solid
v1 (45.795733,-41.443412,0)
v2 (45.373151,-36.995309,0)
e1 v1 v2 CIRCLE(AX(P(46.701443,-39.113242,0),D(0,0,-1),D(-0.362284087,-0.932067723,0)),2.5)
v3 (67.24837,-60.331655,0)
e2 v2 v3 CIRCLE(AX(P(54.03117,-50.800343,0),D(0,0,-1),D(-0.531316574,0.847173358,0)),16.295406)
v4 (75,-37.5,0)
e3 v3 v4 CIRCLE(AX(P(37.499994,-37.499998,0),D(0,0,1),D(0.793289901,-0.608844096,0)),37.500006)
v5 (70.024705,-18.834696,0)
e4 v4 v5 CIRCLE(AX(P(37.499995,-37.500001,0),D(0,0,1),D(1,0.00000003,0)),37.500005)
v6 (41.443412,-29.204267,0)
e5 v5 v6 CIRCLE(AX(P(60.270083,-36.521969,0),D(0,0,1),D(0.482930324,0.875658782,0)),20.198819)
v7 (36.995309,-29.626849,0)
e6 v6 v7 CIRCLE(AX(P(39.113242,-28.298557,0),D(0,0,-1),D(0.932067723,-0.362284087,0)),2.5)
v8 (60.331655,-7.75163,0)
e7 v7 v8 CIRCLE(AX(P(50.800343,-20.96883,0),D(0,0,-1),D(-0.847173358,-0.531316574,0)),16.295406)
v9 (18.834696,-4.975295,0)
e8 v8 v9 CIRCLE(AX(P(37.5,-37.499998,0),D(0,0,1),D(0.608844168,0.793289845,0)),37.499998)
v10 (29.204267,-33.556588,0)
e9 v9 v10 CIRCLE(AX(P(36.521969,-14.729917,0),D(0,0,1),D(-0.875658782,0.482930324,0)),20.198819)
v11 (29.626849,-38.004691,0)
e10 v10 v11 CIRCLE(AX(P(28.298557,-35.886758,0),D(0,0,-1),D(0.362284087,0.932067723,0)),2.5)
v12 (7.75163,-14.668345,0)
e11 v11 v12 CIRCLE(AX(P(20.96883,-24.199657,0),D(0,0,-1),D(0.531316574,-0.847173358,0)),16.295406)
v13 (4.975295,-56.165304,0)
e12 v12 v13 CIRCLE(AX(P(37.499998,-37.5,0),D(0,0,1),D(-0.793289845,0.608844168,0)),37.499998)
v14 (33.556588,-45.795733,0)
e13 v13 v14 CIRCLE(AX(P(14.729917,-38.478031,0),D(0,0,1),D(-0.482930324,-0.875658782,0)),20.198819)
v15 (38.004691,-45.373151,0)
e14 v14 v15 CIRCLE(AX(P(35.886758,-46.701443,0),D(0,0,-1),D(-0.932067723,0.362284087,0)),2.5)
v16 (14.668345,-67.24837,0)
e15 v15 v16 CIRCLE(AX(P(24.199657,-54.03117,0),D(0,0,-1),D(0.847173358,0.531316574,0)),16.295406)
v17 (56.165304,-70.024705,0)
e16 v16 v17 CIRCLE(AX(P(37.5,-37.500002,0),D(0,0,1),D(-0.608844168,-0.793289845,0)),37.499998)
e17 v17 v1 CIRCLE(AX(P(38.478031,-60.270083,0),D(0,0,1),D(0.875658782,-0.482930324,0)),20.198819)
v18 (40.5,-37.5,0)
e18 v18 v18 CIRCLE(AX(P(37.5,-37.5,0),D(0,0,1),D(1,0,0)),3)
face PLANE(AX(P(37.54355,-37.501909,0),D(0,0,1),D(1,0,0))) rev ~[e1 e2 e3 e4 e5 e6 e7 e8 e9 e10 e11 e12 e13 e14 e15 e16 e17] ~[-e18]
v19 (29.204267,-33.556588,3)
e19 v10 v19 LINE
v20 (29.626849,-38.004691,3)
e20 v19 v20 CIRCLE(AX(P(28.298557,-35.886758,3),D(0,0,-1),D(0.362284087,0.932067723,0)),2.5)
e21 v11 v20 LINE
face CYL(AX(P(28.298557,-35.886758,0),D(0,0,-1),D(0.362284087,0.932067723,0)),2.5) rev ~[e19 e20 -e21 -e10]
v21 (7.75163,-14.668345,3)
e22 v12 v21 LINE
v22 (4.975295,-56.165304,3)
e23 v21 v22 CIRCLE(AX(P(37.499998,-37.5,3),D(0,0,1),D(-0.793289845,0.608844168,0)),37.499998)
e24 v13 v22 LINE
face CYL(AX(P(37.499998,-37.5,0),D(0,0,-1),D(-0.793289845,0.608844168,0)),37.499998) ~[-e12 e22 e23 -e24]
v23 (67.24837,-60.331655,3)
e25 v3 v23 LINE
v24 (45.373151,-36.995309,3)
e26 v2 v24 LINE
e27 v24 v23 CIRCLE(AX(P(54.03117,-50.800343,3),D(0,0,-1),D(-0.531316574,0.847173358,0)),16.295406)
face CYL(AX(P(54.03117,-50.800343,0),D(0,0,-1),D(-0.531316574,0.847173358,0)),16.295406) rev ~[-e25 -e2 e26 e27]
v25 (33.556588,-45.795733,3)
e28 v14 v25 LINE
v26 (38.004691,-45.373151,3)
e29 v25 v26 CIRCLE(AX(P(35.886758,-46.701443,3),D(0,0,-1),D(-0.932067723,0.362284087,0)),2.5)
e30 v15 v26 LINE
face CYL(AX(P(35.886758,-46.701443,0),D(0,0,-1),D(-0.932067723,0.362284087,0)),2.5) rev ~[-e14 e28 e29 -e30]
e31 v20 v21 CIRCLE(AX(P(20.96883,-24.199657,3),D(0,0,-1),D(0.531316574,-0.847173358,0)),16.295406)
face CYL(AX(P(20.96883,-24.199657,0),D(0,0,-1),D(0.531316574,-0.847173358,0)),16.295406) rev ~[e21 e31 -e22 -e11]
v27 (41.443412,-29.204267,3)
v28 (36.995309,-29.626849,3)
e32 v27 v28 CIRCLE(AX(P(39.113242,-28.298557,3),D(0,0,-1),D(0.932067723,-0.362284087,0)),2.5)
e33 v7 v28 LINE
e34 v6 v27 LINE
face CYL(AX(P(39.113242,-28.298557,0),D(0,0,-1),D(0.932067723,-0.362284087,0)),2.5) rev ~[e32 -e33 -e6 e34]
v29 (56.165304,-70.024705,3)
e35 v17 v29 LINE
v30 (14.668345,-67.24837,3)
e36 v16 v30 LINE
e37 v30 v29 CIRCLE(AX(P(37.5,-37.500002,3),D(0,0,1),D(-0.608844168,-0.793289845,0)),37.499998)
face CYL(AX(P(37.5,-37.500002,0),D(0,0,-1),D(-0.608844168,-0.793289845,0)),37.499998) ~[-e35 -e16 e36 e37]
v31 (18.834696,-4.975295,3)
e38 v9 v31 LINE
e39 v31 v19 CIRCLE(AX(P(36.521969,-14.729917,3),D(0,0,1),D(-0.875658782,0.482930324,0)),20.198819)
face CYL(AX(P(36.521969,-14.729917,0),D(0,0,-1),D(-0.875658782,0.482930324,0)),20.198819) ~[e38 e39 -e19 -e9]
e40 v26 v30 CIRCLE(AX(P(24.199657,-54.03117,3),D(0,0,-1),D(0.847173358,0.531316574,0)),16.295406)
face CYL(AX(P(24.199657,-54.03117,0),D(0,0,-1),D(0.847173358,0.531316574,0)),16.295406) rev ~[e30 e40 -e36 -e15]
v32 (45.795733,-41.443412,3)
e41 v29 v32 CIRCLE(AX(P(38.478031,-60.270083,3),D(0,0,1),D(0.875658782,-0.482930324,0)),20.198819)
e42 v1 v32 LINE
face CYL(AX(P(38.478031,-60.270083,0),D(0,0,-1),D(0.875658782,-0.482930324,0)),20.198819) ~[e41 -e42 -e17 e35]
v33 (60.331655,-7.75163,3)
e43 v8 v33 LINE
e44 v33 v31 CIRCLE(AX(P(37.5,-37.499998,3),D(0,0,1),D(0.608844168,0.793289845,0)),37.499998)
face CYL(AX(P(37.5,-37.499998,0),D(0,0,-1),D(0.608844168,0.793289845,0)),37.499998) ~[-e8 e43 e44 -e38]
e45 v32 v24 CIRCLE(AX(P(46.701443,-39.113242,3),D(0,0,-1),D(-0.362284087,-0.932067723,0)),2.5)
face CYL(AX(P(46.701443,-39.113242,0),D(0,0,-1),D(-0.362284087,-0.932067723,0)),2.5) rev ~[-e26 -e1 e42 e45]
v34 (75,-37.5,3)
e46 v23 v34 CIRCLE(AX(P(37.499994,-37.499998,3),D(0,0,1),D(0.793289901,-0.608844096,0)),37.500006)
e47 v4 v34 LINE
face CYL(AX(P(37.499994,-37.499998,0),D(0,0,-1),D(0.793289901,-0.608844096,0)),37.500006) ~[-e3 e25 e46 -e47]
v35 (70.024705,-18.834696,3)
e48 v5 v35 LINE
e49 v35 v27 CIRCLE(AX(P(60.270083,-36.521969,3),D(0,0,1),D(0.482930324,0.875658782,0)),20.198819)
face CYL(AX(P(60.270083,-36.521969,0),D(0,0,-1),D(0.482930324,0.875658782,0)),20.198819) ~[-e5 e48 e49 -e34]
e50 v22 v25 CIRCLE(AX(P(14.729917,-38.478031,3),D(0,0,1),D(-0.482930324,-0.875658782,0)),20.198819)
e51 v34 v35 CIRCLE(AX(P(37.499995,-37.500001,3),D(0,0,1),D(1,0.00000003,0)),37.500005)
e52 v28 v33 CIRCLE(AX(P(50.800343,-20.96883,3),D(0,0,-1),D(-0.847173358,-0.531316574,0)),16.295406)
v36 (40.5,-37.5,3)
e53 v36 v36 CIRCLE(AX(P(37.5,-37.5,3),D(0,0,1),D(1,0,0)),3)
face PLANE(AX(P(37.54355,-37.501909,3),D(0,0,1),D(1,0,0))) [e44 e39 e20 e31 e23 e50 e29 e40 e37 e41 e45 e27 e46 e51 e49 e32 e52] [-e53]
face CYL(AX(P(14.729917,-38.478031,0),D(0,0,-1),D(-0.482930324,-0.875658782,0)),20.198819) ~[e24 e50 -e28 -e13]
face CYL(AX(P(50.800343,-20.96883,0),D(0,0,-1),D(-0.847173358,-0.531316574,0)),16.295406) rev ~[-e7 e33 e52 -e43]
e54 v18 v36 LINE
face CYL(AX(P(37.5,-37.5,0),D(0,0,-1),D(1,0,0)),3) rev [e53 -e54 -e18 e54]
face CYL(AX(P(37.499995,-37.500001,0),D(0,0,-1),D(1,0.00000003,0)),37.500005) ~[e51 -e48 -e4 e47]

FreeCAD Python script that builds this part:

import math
import FreeCAD as App
import Part
import Sketcher

doc = App.newDocument("Part")
params = doc.addObject("Spreadsheet::Sheet", "Params")
for row, (alias, value) in enumerate([
    ("sketch1_diameter", "6 mm"),
    ("sketch1_radius", "2.5 mm"),
    ("sketch1_radius2", "37.499998 mm"),
    ("pad1_length", "3 mm"),
], start=1):
    params.set(f"A{row}", alias)
    params.set(f"B{row}", "=" + value)
    params.setAlias(f"B{row}", alias)

body = doc.addObject("PartDesign::Body", "Body")

# Sketch on XY plane
sketch1 = doc.addObject("Sketcher::SketchObject", "Sketch")
body.addObject(sketch1)
sketch1.AttachmentSupport = (doc.XY_Plane, [""])
sketch1.MapMode = "FlatFace"
sketch1.addGeometry(Part.ArcOfCircle(Part.Circle(App.Vector(37.5, -37.5, 0), App.Vector(0, 0, 1), 37.5), math.radians(-38), math.radians(0)), False)
sketch1.addGeometry(Part.ArcOfCircle(Part.Circle(App.Vector(37.5, -37.5, 0), App.Vector(0, 0, 1), 37.5), math.radians(0), math.radians(30)), False)
sketch1.addGeometry(Part.ArcOfCircle(Part.Circle(App.Vector(60.3, -36.5, 0), App.Vector(0, 0, 1), 20.2), math.radians(61), math.radians(159)), False)
sketch1.addGeometry(Part.ArcOfCircle(Part.Circle(App.Vector(39.1, -28.3, 0), App.Vector(0, 0, 1), 2.5), math.radians(-148), math.radians(-21)), False)
sketch1.addGeometry(Part.ArcOfCircle(Part.Circle(App.Vector(50.8, -21, 0), App.Vector(0, 0, 1), 16.3), math.radians(54), math.radians(212)), False)
sketch1.addGeometry(Part.ArcOfCircle(Part.Circle(App.Vector(37.5, -37.5, 0), App.Vector(0, 0, 1), 37.5), math.radians(52), math.radians(120)), False)
sketch1.addGeometry(Part.ArcOfCircle(Part.Circle(App.Vector(36.5, -14.7, 0), App.Vector(0, 0, 1), 20.2), math.radians(151), math.radians(249)), False)
sketch1.addGeometry(Part.ArcOfCircle(Part.Circle(App.Vector(28.3, -35.9, 0), App.Vector(0, 0, 1), 2.5), math.radians(-58), math.radians(69)), False)
sketch1.addGeometry(Part.ArcOfCircle(Part.Circle(App.Vector(21, -24.2, 0), App.Vector(0, 0, 1), 16.3), math.radians(144), math.radians(302)), False)
sketch1.addGeometry(Part.ArcOfCircle(Part.Circle(App.Vector(37.5, -37.5, 0), App.Vector(0, 0, 1), 37.5), math.radians(142), math.radians(210)), False)
sketch1.addGeometry(Part.ArcOfCircle(Part.Circle(App.Vector(14.7, -38.5, 0), App.Vector(0, 0, 1), 20.2), math.radians(-119), math.radians(-21)), False)
sketch1.addGeometry(Part.ArcOfCircle(Part.Circle(App.Vector(35.9, -46.7, 0), App.Vector(0, 0, 1), 2.5), math.radians(32), math.radians(159)), False)
sketch1.addGeometry(Part.ArcOfCircle(Part.Circle(App.Vector(24.2, -54, 0), App.Vector(0, 0, 1), 16.3), math.radians(-126), math.radians(32)), False)
sketch1.addGeometry(Part.ArcOfCircle(Part.Circle(App.Vector(37.5, -37.5, 0), App.Vector(0, 0, 1), 37.5), math.radians(-128), math.radians(-60)), False)
sketch1.addGeometry(Part.ArcOfCircle(Part.Circle(App.Vector(38.5, -60.3, 0), App.Vector(0, 0, 1), 20.2), math.radians(-29), math.radians(69)), False)
sketch1.addGeometry(Part.ArcOfCircle(Part.Circle(App.Vector(46.7, -39.1, 0), App.Vector(0, 0, 1), 2.5), math.radians(122), math.radians(249)), False)
sketch1.addGeometry(Part.ArcOfCircle(Part.Circle(App.Vector(54, -50.8, 0), App.Vector(0, 0, 1), 16.3), math.radians(-36), math.radians(122)), False)
sketch1.addGeometry(Part.Circle(App.Vector(37.5, -37.5, 0), App.Vector(0, 0, 1), 3), False)
sketch1.addConstraint(Sketcher.Constraint("Tangent", 0, 2, 1, 1))
sketch1.addConstraint(Sketcher.Constraint("Coincident", 1, 2, 2, 1))
sketch1.addConstraint(Sketcher.Constraint("Tangent", 2, 2, 3, 2))
sketch1.addConstraint(Sketcher.Constraint("Tangent", 3, 1, 4, 2))
sketch1.addConstraint(Sketcher.Constraint("Coincident", 4, 1, 5, 1))
sketch1.addConstraint(Sketcher.Constraint("Coincident", 5, 2, 6, 1))
sketch1.addConstraint(Sketcher.Constraint("Tangent", 6, 2, 7, 2))
sketch1.addConstraint(Sketcher.Constraint("Tangent", 7, 1, 8, 2))
sketch1.addConstraint(Sketcher.Constraint("Coincident", 8, 1, 9, 1))
sketch1.addConstraint(Sketcher.Constraint("Coincident", 9, 2, 10, 1))
sketch1.addConstraint(Sketcher.Constraint("Tangent", 10, 2, 11, 2))
sketch1.addConstraint(Sketcher.Constraint("Tangent", 11, 1, 12, 2))
sketch1.addConstraint(Sketcher.Constraint("Coincident", 12, 1, 13, 1))
sketch1.addConstraint(Sketcher.Constraint("Coincident", 13, 2, 14, 1))
sketch1.addConstraint(Sketcher.Constraint("Tangent", 14, 2, 15, 2))
sketch1.addConstraint(Sketcher.Constraint("Tangent", 15, 1, 16, 2))
sketch1.addConstraint(Sketcher.Constraint("Coincident", 16, 1, 0, 1))
sketch1.addConstraint(Sketcher.Constraint("Coincident", 5, 3, 0, 3))
sketch1.addConstraint(Sketcher.Constraint("Coincident", 9, 3, 0, 3))
sketch1.addConstraint(Sketcher.Constraint("Coincident", 13, 3, 0, 3))
sketch1.addConstraint(Sketcher.Constraint("Coincident", 17, 3, 0, 3))
sketch1.addConstraint(Sketcher.Constraint("Equal", 0, 1))
sketch1.addConstraint(Sketcher.Constraint("Equal", 2, 6))
sketch1.addConstraint(Sketcher.Constraint("Equal", 3, 7))
sketch1.addConstraint(Sketcher.Constraint("Equal", 4, 8))
sketch1.addConstraint(Sketcher.Constraint("Equal", 5, 9))
sketch1.addConstraint(Sketcher.Constraint("Equal", 6, 10))
sketch1.addConstraint(Sketcher.Constraint("Equal", 7, 11))
sketch1.addConstraint(Sketcher.Constraint("Equal", 8, 12))
sketch1.addConstraint(Sketcher.Constraint("Equal", 9, 13))
sketch1.addConstraint(Sketcher.Constraint("Equal", 10, 14))
sketch1.addConstraint(Sketcher.Constraint("Equal", 11, 15))
sketch1.addConstraint(Sketcher.Constraint("Equal", 12, 16))
sketch1.addConstraint(Sketcher.Constraint("Horizontal", 17, 3, 0, 2))
sketch1.addConstraint(Sketcher.Constraint("Diameter", 17, 6.0))
sketch1.addConstraint(Sketcher.Constraint("Radius", 3, 2.5))
sketch1.addConstraint(Sketcher.Constraint("Radius", 5, 37.499998))
sketch1.addConstraint(Sketcher.Constraint("DistanceX", -1, 1, 0, 2, 75.0))
sketch1.addConstraint(Sketcher.Constraint("DistanceY", 1, 3, -1, 1, 37.500001))
sketch1.addConstraint(Sketcher.Constraint("DistanceX", -1, 1, 5, 3, 37.5))
sketch1.addConstraint(Sketcher.Constraint("Radius", 2, 20.198819))
sketch1.addConstraint(Sketcher.Constraint("Radius", 4, 16.295406))
sketch1.addConstraint(Sketcher.Constraint("DistanceX", 3, 3, 4, 3, 11.687101))
sketch1.addConstraint(Sketcher.Constraint("DistanceY", 7, 3, 3, 3, 7.588201))
sketch1.addConstraint(Sketcher.Constraint("DistanceY", 7, 3, 8, 3, 11.687101))
sketch1.addConstraint(Sketcher.Constraint("DistanceX", 7, 3, 11, 3, 7.588201))
sketch1.addConstraint(Sketcher.Constraint("DistanceX", 12, 3, 11, 3, 11.687101))
sketch1.addConstraint(Sketcher.Constraint("DistanceY", 16, 3, 15, 3, 11.687101))
sketch1.addConstraint(Sketcher.Constraint("DistanceY", 16, 3, 11, 3, 4.0989))
sketch1.addConstraint(Sketcher.Constraint("DistanceY", 4, 3, 4, 1, 13.2172))
sketch1.addConstraint(Sketcher.Constraint("DistanceX", 8, 1, 8, 3, 13.2172))
sketch1.addConstraint(Sketcher.Constraint("DistanceY", 12, 1, 12, 3, 13.2172))
sketch1.addConstraint(Sketcher.Constraint("DistanceX", 16, 3, 16, 1, 13.2172))
sketch1.addConstraint(Sketcher.Constraint("DistanceY", 2, 3, -1, 1, 36.521969))
sketch1.addConstraint(Sketcher.Constraint("DistanceY", 4, 3, -1, 1, 20.96883))
sketch1.addConstraint(Sketcher.Constraint("DistanceX", -1, 1, 6, 3, 36.521969))
sketch1.addConstraint(Sketcher.Constraint("DistanceY", 10, 3, -1, 1, 38.478031))
sketch1.addConstraint(Sketcher.Constraint("DistanceX", -1, 1, 14, 3, 38.478031))
sketch1.setExpression("Constraints[34]", "Params.sketch1_diameter")
sketch1.setExpression("Constraints[35]", "Params.sketch1_radius")
sketch1.setExpression("Constraints[36]", "Params.sketch1_radius2")
pad1 = doc.addObject("PartDesign::Pad", "Pad")
body.addObject(pad1)
pad1.Profile = sketch1
pad1.setExpression("Length", "Params.pad1_length")

doc.recompute()
